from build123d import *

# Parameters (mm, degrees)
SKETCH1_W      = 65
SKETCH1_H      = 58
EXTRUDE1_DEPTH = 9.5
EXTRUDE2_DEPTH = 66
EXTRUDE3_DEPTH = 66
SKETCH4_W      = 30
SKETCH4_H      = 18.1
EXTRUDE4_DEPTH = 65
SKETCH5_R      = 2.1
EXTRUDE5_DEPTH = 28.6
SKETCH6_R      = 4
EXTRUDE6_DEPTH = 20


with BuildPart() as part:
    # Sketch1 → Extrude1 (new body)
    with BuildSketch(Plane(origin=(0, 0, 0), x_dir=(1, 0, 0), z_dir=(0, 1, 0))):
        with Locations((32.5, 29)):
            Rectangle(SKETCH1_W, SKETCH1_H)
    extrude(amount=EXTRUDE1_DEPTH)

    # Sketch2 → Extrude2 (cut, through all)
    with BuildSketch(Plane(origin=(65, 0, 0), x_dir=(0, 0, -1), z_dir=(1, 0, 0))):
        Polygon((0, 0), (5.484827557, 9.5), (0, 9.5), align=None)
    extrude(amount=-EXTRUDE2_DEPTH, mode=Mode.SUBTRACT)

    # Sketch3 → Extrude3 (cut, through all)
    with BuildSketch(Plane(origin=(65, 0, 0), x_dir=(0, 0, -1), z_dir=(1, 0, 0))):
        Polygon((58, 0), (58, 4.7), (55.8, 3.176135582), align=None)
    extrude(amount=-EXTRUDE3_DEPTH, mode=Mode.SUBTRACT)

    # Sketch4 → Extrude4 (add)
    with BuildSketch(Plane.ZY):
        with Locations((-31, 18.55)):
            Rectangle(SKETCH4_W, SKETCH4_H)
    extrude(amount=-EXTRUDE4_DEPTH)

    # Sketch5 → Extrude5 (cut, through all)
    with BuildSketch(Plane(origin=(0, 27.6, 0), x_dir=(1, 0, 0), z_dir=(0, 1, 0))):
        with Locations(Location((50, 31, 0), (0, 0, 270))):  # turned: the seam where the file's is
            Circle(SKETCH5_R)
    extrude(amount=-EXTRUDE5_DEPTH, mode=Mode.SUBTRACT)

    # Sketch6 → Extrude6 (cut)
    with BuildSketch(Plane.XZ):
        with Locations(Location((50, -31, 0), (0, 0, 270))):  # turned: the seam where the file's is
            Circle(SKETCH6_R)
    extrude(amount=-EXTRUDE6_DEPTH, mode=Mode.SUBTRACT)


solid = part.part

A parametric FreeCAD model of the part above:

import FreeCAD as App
import Part
import Sketcher
Q = App.Units.Quantity

doc = App.newDocument("Part")
params = doc.addObject("Spreadsheet::Sheet", "Params")
for row, (alias, value) in enumerate([
    ("sketch1_width", "65 mm"),
    ("sketch1_height", "58 mm"),
    ("pad1_length", "9.5 mm"),
    ("sketch2_width", "9.5 mm"),
    ("sketch3_width", "4.7 mm"),
    ("sketch4_height", "30 mm"),
    ("sketch4_width", "18.1 mm"),
    ("pad2_length", "65 mm"),
    ("sketch5_diameter", "4.2 mm"),
    ("sketch6_diameter", "8 mm"),
    ("pocket4_length", "20 mm"),
], start=1):
    params.set(f"A{row}", alias)
    params.set(f"B{row}", "=" + value)
    params.setAlias(f"B{row}", alias)

body = doc.addObject("PartDesign::Body", "Body")

# Sketch on XZ plane
sketch1 = body.newObject("Sketcher::SketchObject", "Sketch")
sketch1.AttachmentSupport = (doc.getObject("XZ_Plane"), [""])
sketch1.MapMode = "FlatFace"
sketch1.addGeometry(Part.LineSegment(App.Vector(0, -58, 0), App.Vector(0, 0, 0)), False)
sketch1.addGeometry(Part.LineSegment(App.Vector(0, 0, 0), App.Vector(65, 0, 0)), False)
sketch1.addGeometry(Part.LineSegment(App.Vector(65, 0, 0), App.Vector(65, -58, 0)), False)
sketch1.addGeometry(Part.LineSegment(App.Vector(65, -58, 0), App.Vector(0, -58, 0)), False)
sketch1.addConstraint(Sketcher.Constraint("Coincident", 0, 2, 1, 1))
sketch1.addConstraint(Sketcher.Constraint("Coincident", 1, 2, 2, 1))
sketch1.addConstraint(Sketcher.Constraint("Coincident", 2, 2, 3, 1))
sketch1.addConstraint(Sketcher.Constraint("Coincident", 3, 2, 0, 1))
sketch1.addConstraint(Sketcher.Constraint("Vertical", 0))
sketch1.addConstraint(Sketcher.Constraint("Horizontal", 1))
sketch1.addConstraint(Sketcher.Constraint("Vertical", 2))
sketch1.addConstraint(Sketcher.Constraint("Horizontal", 3))
sketch1.addConstraint(Sketcher.Constraint("Coincident", 0, 2, -1, 1))
sketch1.addConstraint(Sketcher.Constraint("DistanceX", 1, 1, 1, 2, 65.0))
sketch1.addConstraint(Sketcher.Constraint("DistanceY", 0, 1, 0, 2, 58.0))
sketch1.setExpression("Constraints[9]", "Params.sketch1_width")
sketch1.setExpression("Constraints[10]", "Params.sketch1_height")
pad1 = body.newObject("PartDesign::Pad", "Pad")
pad1.Profile = sketch1
pad1.setExpression("Length", "Params.pad1_length")
pad1.Reversed = True

# Sketch on YZ plane
sketch2 = body.newObject("Sketcher::SketchObject", "Sketch001")
sketch2.AttachmentSupport = (doc.getObject("YZ_Plane"), [""])
sketch2.MapMode = "FlatFace"
sketch2.AttachmentOffset = App.Placement(App.Vector(0, 0, 65), App.Rotation())
sketch2.addGeometry(Part.LineSegment(App.Vector(0, 0, 0), App.Vector(10, -5, 0)), False)
sketch2.addGeometry(Part.LineSegment(App.Vector(10, -5, 0), App.Vector(10, 0, 0)), False)
sketch2.addGeometry(Part.LineSegment(App.Vector(10, 0, 0), App.Vector(0, 0, 0)), False)
sketch2.addConstraint(Sketcher.Constraint("Coincident", 0, 2, 1, 1))
sketch2.addConstraint(Sketcher.Constraint("Coincident", 1, 2, 2, 1))
sketch2.addConstraint(Sketcher.Constraint("Coincident", 2, 2, 0, 1))
sketch2.addConstraint(Sketcher.Constraint("Vertical", 1))
sketch2.addConstraint(Sketcher.Constraint("Horizontal", 2))
sketch2.addConstraint(Sketcher.Constraint("Coincident", 2, 2, -1, 1))
sketch2.addConstraint(Sketcher.Constraint("Angle", 0, Q("-30 deg")))
sketch2.addConstraint(Sketcher.Constraint("DistanceX", 2, 2, 2, 1, 9.5))
sketch2.setExpression("Constraints[7]", "Params.sketch2_width")
pocket1 = body.newObject("PartDesign::Pocket", "Pocket")
pocket1.Profile = sketch2
pocket1.Type = "ThroughAll"

# Sketch on YZ plane
sketch3 = body.newObject("Sketcher::SketchObject", "Sketch002")
sketch3.AttachmentSupport = (doc.getObject("YZ_Plane"), [""])
sketch3.MapMode = "FlatFace"
sketch3.AttachmentOffset = App.Placement(App.Vector(0, 0, 65), App.Rotation())
sketch3.addGeometry(Part.LineSegment(App.Vector(0, -58, 0), App.Vector(4.7, -58, 0)), False)
sketch3.addGeometry(Part.LineSegment(App.Vector(4.7, -58, 0), App.Vector(3.2, -55.8, 0)), False)
sketch3.addGeometry(Part.LineSegment(App.Vector(3.2, -55.8, 0), App.Vector(0, -58, 0)), False)
sketch3.addConstraint(Sketcher.Constraint("Coincident", 0, 2, 1, 1))
sketch3.addConstraint(Sketcher.Constraint("Coincident", 1, 2, 2, 1))
sketch3.addConstraint(Sketcher.Constraint("Coincident", 2, 2, 0, 1))
sketch3.addConstraint(Sketcher.Constraint("Horizontal", 0))
sketch3.addConstraint(Sketcher.Constraint("PointOnObject", 2, 2, -2))
sketch3.addConstraint(Sketcher.Constraint("Perpendicular", 1, 2))
sketch3.addConstraint(Sketcher.Constraint("DistanceX", 0, 1, 0, 2, 4.7))
sketch3.addConstraint(Sketcher.Constraint("DistanceY", 0, 2, -1, 1, 58.0))
sketch3.addConstraint(Sketcher.Constraint("DistanceY", 1, 2, -1, 1, 55.8))
sketch3.setExpression("Constraints[6]", "Params.sketch3_width")
pocket2 = body.newObject("PartDesign::Pocket", "Pocket001")
pocket2.Profile = sketch3
pocket2.Type = "ThroughAll"

# Sketch on YZ plane
sketch4 = body.newObject("Sketcher::SketchObject", "Sketch003")
sketch4.AttachmentSupport = (doc.getObject("YZ_Plane"), [""])
sketch4.MapMode = "FlatFace"
sketch4.addGeometry(Part.LineSegment(App.Vector(28, -46, 0), App.Vector(10, -46, 0)), False)
sketch4.addGeometry(Part.LineSegment(App.Vector(10, -46, 0), App.Vector(10, -16, 0)), False)
sketch4.addGeometry(Part.LineSegment(App.Vector(10, -16, 0), App.Vector(28, -16, 0)), False)
sketch4.addGeometry(Part.LineSegment(App.Vector(28, -16, 0), App.Vector(28, -46, 0)), False)
sketch4.addConstraint(Sketcher.Constraint("Coincident", 0, 2, 1, 1))
sketch4.addConstraint(Sketcher.Constraint("Coincident", 1, 2, 2, 1))
sketch4.addConstraint(Sketcher.Constraint("Coincident", 2, 2, 3, 1))
sketch4.addConstraint(Sketcher.Constraint("Coincident", 3, 2, 0, 1))
sketch4.addConstraint(Sketcher.Constraint("Horizontal", 0))
sketch4.addConstraint(Sketcher.Constraint("Vertical", 1))
sketch4.addConstraint(Sketcher.Constraint("Horizontal", 2))
sketch4.addConstraint(Sketcher.Constraint("Vertical", 3))
sketch4.addConstraint(Sketcher.Constraint("DistanceY", 1, 1, 1, 2, 30.0))
sketch4.addConstraint(Sketcher.Constraint("DistanceX", 0, 2, 0, 1, 18.1))
sketch4.addConstraint(Sketcher.Constraint("DistanceY", 0, 2, -1, 1, 46.0))
sketch4.addConstraint(Sketcher.Constraint("DistanceX", -1, 1, 0, 2, 9.5))
sketch4.setExpression("Constraints[8]", "Params.sketch4_height")
sketch4.setExpression("Constraints[9]", "Params.sketch4_width")
pad2 = body.newObject("PartDesign::Pad", "Pad001")
pad2.Profile = sketch4
pad2.setExpression("Length", "Params.pad2_length")

# Sketch on XZ plane
sketch5 = body.newObject("Sketcher::SketchObject", "Sketch004")
sketch5.AttachmentSupport = (doc.getObject("XZ_Plane"), [""])
sketch5.MapMode = "FlatFace"
sketch5.AttachmentOffset = App.Placement(App.Vector(0, 0, -27.6), App.Rotation())
sketch5.addGeometry(Part.Circle(App.Vector(50, -31, 0), App.Vector(0, 0, 1), 2.1), False)
sketch5.addConstraint(Sketcher.Constraint("Diameter", 0, 4.2))
sketch5.addConstraint(Sketcher.Constraint("DistanceX", -1, 1, 0, 3, 50.0))
sketch5.addConstraint(Sketcher.Constraint("DistanceY", 0, 3, -1, 1, 31.0))
sketch5.setExpression("Constraints[0]", "Params.sketch5_diameter")
pocket3 = body.newObject("PartDesign::Pocket", "Pocket002")
pocket3.Profile = sketch5
pocket3.Type = "ThroughAll"
pocket3.Reversed = True

# Sketch on XZ plane
sketch6 = body.newObject("Sketcher::SketchObject", "Sketch005")
sketch6.AttachmentSupport = (doc.getObject("XZ_Plane"), [""])
sketch6.MapMode = "FlatFace"
sketch6.addGeometry(Part.Circle(App.Vector(50, -31, 0), App.Vector(0, 0, 1), 4), False)
sketch6.addConstraint(Sketcher.Constraint("Diameter", 0, 8.0))
sketch6.addConstraint(Sketcher.Constraint("DistanceX", -1, 1, 0, 3, 50.0))
sketch6.addConstraint(Sketcher.Constraint("DistanceY", 0, 3, -1, 1, 31.0))
sketch6.setExpression("Constraints[0]", "Params.sketch6_diameter")
pocket4 = body.newObject("PartDesign::Pocket", "Pocket003")
pocket4.Profile = sketch6
pocket4.setExpression("Length", "Params.pocket4_length")

doc.recompute()
